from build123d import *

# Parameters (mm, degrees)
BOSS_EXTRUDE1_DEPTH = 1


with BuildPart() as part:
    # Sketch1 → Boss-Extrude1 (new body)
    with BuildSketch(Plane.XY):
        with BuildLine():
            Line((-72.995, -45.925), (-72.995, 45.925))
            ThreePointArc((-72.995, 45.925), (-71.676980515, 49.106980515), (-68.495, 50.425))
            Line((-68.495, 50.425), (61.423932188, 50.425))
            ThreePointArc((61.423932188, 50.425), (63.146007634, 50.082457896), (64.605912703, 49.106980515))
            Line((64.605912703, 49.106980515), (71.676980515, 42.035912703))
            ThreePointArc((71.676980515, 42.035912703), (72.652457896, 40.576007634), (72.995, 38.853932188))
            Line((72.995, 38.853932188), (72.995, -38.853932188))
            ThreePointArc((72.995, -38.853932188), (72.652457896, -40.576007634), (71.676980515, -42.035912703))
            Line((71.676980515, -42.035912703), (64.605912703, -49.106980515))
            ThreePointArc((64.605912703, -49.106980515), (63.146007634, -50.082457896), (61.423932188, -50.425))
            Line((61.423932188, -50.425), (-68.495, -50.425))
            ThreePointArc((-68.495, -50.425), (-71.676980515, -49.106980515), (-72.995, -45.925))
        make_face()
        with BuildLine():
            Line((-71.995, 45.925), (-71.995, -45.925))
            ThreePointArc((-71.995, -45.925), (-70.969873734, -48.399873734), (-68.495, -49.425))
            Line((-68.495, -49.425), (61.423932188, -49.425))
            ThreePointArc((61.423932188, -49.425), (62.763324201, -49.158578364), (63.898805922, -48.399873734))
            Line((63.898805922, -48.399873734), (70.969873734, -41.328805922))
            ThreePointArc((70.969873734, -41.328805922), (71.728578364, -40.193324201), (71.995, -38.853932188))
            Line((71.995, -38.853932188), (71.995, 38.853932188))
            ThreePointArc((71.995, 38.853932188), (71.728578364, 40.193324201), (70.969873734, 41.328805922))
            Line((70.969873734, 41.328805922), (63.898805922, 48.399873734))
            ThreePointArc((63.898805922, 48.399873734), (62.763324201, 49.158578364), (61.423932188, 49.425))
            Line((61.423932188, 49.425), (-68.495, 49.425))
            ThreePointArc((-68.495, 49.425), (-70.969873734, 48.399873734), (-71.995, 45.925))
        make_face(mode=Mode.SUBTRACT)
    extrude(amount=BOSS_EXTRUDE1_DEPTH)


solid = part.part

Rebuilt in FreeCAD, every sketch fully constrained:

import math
import FreeCAD as App
import Part
import Sketcher

doc = App.newDocument("Part")
params = doc.addObject("Spreadsheet::Sheet", "Params")
for row, (alias, value) in enumerate([
    ("sketch1_radius", "4.5 mm"),
    ("sketch1_radius2", "3.5 mm"),
    ("sketch1_length", "10 mm"),
    ("sketch1_height", "91.85 mm"),
    ("pad1_length", "1 mm"),
], start=1):
    params.set(f"A{row}", alias)
    params.set(f"B{row}", "=" + value)
    params.setAlias(f"B{row}", alias)

body = doc.addObject("PartDesign::Body", "Body")

sketch1 = body.newObject("Sketcher::SketchObject", "Sketch")
sketch1.AttachmentSupport = (doc.getObject("XY_Plane"), [""])
sketch1.MapMode = "FlatFace"
sketch1.addGeometry(Part.LineSegment(App.Vector(-72.995, 45.925, 0), App.Vector(-72.995, -45.925, 0)), False)
sketch1.addGeometry(Part.ArcOfCircle(Part.Circle(App.Vector(-68.495, -45.925, 0), App.Vector(0, 0, 1), 4.5), math.radians(-180), math.radians(-90)), False)
sketch1.addGeometry(Part.LineSegment(App.Vector(-68.495, -50.425, 0), App.Vector(61.423932, -50.425, 0)), False)
sketch1.addGeometry(Part.ArcOfCircle(Part.Circle(App.Vector(61.423932, -45.925, 0), App.Vector(0, 0, 1), 4.5), math.radians(-90), math.radians(-45)), False)
sketch1.addGeometry(Part.LineSegment(App.Vector(64.605913, -49.106981, 0), App.Vector(71.676981, -42.035913, 0)), False)
sketch1.addGeometry(Part.ArcOfCircle(Part.Circle(App.Vector(68.495, -38.853932, 0), App.Vector(0, 0, 1), 4.5), math.radians(-45), math.radians(0)), False)
sketch1.addGeometry(Part.LineSegment(App.Vector(72.995, -38.853932, 0), App.Vector(72.995, 38.853932, 0)), False)
sketch1.addGeometry(Part.ArcOfCircle(Part.Circle(App.Vector(68.495, 38.853932, 0), App.Vector(0, 0, 1), 4.5), math.radians(0), math.radians(45)), False)
sketch1.addGeometry(Part.LineSegment(App.Vector(71.676981, 42.035913, 0), App.Vector(64.605913, 49.106981, 0)), False)
sketch1.addGeometry(Part.ArcOfCircle(Part.Circle(App.Vector(61.423932, 45.925, 0), App.Vector(0, 0, 1), 4.5), math.radians(45), math.radians(90)), False)
sketch1.addGeometry(Part.LineSegment(App.Vector(61.423932, 50.425, 0), App.Vector(-68.495, 50.425, 0)), False)
sketch1.addGeometry(Part.ArcOfCircle(Part.Circle(App.Vector(-68.495, 45.925, 0), App.Vector(0, 0, 1), 4.5), math.radians(90), math.radians(180)), False)
sketch1.addGeometry(Part.ArcOfCircle(Part.Circle(App.Vector(-68.495, 45.925, 0), App.Vector(0, 0, 1), 3.5), math.radians(90), math.radians(180)), False)
sketch1.addGeometry(Part.LineSegment(App.Vector(-68.495, 49.425, 0), App.Vector(61.423932, 49.425, 0)), False)
sketch1.addGeometry(Part.ArcOfCircle(Part.Circle(App.Vector(61.423932, 45.925, 0), App.Vector(0, 0, 1), 3.5), math.radians(45), math.radians(90)), False)
sketch1.addGeometry(Part.LineSegment(App.Vector(63.898806, 48.399874, 0), App.Vector(70.969874, 41.328806, 0)), False)
sketch1.addGeometry(Part.ArcOfCircle(Part.Circle(App.Vector(68.495, 38.853932, 0), App.Vector(0, 0, 1), 3.5), math.radians(0), math.radians(45)), False)
sketch1.addGeometry(Part.LineSegment(App.Vector(71.995, 38.853932, 0), App.Vector(71.995, -38.853932, 0)), False)
sketch1.addGeometry(Part.ArcOfCircle(Part.Circle(App.Vector(68.495, -38.853932, 0), App.Vector(0, 0, 1), 3.5), math.radians(-45), math.radians(0)), False)
sketch1.addGeometry(Part.LineSegment(App.Vector(70.969874, -41.328806, 0), App.Vector(63.898806, -48.399874, 0)), False)
sketch1.addGeometry(Part.ArcOfCircle(Part.Circle(App.Vector(61.423932, -45.925, 0), App.Vector(0, 0, 1), 3.5), math.radians(-90), math.radians(-45)), False)
sketch1.addGeometry(Part.LineSegment(App.Vector(61.423932, -49.425, 0), App.Vector(-68.495, -49.425, 0)), False)
sketch1.addGeometry(Part.ArcOfCircle(Part.Circle(App.Vector(-68.495, -45.925, 0), App.Vector(0, 0, 1), 3.5), math.radians(-180), math.radians(-90)), False)
sketch1.addGeometry(Part.LineSegment(App.Vector(-71.995, -45.925, 0), App.Vector(-71.995, 45.925, 0)), False)
sketch1.addConstraint(Sketcher.Constraint("Tangent", 0, 2, 1, 1))
sketch1.addConstraint(Sketcher.Constraint("Tangent", 1, 2, 2, 1))
sketch1.addConstraint(Sketcher.Constraint("Tangent", 2, 2, 3, 1))
sketch1.addConstraint(Sketcher.Constraint("Tangent", 3, 2, 4, 1))
sketch1.addConstraint(Sketcher.Constraint("Tangent", 4, 2, 5, 1))
sketch1.addConstraint(Sketcher.Constraint("Tangent", 5, 2, 6, 1))
sketch1.addConstraint(Sketcher.Constraint("Tangent", 6, 2, 7, 1))
sketch1.addConstraint(Sketcher.Constraint("Tangent", 7, 2, 8, 1))
sketch1.addConstraint(Sketcher.Constraint("Tangent", 8, 2, 9, 1))
sketch1.addConstraint(Sketcher.Constraint("Tangent", 9, 2, 10, 1))
sketch1.addConstraint(Sketcher.Constraint("Tangent", 10, 2, 11, 1))
sketch1.addConstraint(Sketcher.Constraint("Tangent", 11, 2, 0, 1))
sketch1.addConstraint(Sketcher.Constraint("Tangent", 12, 1, 13, 1))
sketch1.addConstraint(Sketcher.Constraint("Tangent", 13, 2, 14, 2))
sketch1.addConstraint(Sketcher.Constraint("Tangent", 14, 1, 15, 1))
sketch1.addConstraint(Sketcher.Constraint("Tangent", 15, 2, 16, 2))
sketch1.addConstraint(Sketcher.Constraint("Tangent", 16, 1, 17, 1))
sketch1.addConstraint(Sketcher.Constraint("Tangent", 17, 2, 18, 2))
sketch1.addConstraint(Sketcher.Constraint("Tangent", 18, 1, 19, 1))
sketch1.addConstraint(Sketcher.Constraint("Tangent", 19, 2, 20, 2))
sketch1.addConstraint(Sketcher.Constraint("Tangent", 20, 1, 21, 1))
sketch1.addConstraint(Sketcher.Constraint("Tangent", 21, 2, 22, 2))
sketch1.addConstraint(Sketcher.Constraint("Tangent", 22, 1, 23, 1))
sketch1.addConstraint(Sketcher.Constraint("Tangent", 23, 2, 12, 2))
sketch1.addConstraint(Sketcher.Constraint("Vertical", 0))
sketch1.addConstraint(Sketcher.Constraint("Horizontal", 2))
sketch1.addConstraint(Sketcher.Constraint("Vertical", 6))
sketch1.addConstraint(Sketcher.Constraint("Horizontal", 10))
sketch1.addConstraint(Sketcher.Constraint("Horizontal", 13))
sketch1.addConstraint(Sketcher.Constraint("Vertical", 17))
sketch1.addConstraint(Sketcher.Constraint("Horizontal", 21))
sketch1.addConstraint(Sketcher.Constraint("Vertical", 23))
sketch1.addConstraint(Sketcher.Constraint("Coincident", 12, 3, 11, 3))
sketch1.addConstraint(Sketcher.Constraint("Coincident", 14, 3, 9, 3))
sketch1.addConstraint(Sketcher.Constraint("Coincident", 16, 3, 7, 3))
sketch1.addConstraint(Sketcher.Constraint("Coincident", 18, 3, 5, 3))
sketch1.addConstraint(Sketcher.Constraint("Coincident", 20, 3, 3, 3))
sketch1.addConstraint(Sketcher.Constraint("Coincident", 22, 3, 1, 3))
sketch1.addConstraint(Sketcher.Constraint("Equal", 1, 3))
sketch1.addConstraint(Sketcher.Constraint("Equal", 3, 5))
sketch1.addConstraint(Sketcher.Constraint("Equal", 5, 7))
sketch1.addConstraint(Sketcher.Constraint("Equal", 7, 9))
sketch1.addConstraint(Sketcher.Constraint("Equal", 9, 11))
sketch1.addConstraint(Sketcher.Constraint("Equal", 14, 16))
sketch1.addConstraint(Sketcher.Constraint("Symmetric", 3, 3, 9, 3, -1))
sketch1.addConstraint(Sketcher.Constraint("Perpendicular", 4, 8))
sketch1.addConstraint(Sketcher.Constraint("Vertical", 4, 2, 7, 2))
sketch1.addConstraint(Sketcher.Constraint("Radius", 1, 4.5))
sketch1.addConstraint(Sketcher.Constraint("Radius", 12, 3.5))
sketch1.addConstraint(Sketcher.Constraint("Distance", 4, 10.0))
sketch1.addConstraint(Sketcher.Constraint("DistanceY", 0, 2, 0, 1, 91.85))
sketch1.addConstraint(Sketcher.Constraint("DistanceX", 1, 3, 5, 3, 136.99))
sketch1.addConstraint(Sketcher.Constraint("DistanceX", 1, 3, -1, 1, 68.495))
sketch1.setExpression("Constraints[47]", "Params.sketch1_radius")
sketch1.setExpression("Constraints[48]", "Params.sketch1_radius2")
sketch1.setExpression("Constraints[49]", "Params.sketch1_length")
sketch1.setExpression("Constraints[50]", "Params.sketch1_height")
pad1 = body.newObject("PartDesign::Pad", "Pad")
pad1.Profile = sketch1
pad1.setExpression("Length", "Params.pad1_length")

doc.recompute()
